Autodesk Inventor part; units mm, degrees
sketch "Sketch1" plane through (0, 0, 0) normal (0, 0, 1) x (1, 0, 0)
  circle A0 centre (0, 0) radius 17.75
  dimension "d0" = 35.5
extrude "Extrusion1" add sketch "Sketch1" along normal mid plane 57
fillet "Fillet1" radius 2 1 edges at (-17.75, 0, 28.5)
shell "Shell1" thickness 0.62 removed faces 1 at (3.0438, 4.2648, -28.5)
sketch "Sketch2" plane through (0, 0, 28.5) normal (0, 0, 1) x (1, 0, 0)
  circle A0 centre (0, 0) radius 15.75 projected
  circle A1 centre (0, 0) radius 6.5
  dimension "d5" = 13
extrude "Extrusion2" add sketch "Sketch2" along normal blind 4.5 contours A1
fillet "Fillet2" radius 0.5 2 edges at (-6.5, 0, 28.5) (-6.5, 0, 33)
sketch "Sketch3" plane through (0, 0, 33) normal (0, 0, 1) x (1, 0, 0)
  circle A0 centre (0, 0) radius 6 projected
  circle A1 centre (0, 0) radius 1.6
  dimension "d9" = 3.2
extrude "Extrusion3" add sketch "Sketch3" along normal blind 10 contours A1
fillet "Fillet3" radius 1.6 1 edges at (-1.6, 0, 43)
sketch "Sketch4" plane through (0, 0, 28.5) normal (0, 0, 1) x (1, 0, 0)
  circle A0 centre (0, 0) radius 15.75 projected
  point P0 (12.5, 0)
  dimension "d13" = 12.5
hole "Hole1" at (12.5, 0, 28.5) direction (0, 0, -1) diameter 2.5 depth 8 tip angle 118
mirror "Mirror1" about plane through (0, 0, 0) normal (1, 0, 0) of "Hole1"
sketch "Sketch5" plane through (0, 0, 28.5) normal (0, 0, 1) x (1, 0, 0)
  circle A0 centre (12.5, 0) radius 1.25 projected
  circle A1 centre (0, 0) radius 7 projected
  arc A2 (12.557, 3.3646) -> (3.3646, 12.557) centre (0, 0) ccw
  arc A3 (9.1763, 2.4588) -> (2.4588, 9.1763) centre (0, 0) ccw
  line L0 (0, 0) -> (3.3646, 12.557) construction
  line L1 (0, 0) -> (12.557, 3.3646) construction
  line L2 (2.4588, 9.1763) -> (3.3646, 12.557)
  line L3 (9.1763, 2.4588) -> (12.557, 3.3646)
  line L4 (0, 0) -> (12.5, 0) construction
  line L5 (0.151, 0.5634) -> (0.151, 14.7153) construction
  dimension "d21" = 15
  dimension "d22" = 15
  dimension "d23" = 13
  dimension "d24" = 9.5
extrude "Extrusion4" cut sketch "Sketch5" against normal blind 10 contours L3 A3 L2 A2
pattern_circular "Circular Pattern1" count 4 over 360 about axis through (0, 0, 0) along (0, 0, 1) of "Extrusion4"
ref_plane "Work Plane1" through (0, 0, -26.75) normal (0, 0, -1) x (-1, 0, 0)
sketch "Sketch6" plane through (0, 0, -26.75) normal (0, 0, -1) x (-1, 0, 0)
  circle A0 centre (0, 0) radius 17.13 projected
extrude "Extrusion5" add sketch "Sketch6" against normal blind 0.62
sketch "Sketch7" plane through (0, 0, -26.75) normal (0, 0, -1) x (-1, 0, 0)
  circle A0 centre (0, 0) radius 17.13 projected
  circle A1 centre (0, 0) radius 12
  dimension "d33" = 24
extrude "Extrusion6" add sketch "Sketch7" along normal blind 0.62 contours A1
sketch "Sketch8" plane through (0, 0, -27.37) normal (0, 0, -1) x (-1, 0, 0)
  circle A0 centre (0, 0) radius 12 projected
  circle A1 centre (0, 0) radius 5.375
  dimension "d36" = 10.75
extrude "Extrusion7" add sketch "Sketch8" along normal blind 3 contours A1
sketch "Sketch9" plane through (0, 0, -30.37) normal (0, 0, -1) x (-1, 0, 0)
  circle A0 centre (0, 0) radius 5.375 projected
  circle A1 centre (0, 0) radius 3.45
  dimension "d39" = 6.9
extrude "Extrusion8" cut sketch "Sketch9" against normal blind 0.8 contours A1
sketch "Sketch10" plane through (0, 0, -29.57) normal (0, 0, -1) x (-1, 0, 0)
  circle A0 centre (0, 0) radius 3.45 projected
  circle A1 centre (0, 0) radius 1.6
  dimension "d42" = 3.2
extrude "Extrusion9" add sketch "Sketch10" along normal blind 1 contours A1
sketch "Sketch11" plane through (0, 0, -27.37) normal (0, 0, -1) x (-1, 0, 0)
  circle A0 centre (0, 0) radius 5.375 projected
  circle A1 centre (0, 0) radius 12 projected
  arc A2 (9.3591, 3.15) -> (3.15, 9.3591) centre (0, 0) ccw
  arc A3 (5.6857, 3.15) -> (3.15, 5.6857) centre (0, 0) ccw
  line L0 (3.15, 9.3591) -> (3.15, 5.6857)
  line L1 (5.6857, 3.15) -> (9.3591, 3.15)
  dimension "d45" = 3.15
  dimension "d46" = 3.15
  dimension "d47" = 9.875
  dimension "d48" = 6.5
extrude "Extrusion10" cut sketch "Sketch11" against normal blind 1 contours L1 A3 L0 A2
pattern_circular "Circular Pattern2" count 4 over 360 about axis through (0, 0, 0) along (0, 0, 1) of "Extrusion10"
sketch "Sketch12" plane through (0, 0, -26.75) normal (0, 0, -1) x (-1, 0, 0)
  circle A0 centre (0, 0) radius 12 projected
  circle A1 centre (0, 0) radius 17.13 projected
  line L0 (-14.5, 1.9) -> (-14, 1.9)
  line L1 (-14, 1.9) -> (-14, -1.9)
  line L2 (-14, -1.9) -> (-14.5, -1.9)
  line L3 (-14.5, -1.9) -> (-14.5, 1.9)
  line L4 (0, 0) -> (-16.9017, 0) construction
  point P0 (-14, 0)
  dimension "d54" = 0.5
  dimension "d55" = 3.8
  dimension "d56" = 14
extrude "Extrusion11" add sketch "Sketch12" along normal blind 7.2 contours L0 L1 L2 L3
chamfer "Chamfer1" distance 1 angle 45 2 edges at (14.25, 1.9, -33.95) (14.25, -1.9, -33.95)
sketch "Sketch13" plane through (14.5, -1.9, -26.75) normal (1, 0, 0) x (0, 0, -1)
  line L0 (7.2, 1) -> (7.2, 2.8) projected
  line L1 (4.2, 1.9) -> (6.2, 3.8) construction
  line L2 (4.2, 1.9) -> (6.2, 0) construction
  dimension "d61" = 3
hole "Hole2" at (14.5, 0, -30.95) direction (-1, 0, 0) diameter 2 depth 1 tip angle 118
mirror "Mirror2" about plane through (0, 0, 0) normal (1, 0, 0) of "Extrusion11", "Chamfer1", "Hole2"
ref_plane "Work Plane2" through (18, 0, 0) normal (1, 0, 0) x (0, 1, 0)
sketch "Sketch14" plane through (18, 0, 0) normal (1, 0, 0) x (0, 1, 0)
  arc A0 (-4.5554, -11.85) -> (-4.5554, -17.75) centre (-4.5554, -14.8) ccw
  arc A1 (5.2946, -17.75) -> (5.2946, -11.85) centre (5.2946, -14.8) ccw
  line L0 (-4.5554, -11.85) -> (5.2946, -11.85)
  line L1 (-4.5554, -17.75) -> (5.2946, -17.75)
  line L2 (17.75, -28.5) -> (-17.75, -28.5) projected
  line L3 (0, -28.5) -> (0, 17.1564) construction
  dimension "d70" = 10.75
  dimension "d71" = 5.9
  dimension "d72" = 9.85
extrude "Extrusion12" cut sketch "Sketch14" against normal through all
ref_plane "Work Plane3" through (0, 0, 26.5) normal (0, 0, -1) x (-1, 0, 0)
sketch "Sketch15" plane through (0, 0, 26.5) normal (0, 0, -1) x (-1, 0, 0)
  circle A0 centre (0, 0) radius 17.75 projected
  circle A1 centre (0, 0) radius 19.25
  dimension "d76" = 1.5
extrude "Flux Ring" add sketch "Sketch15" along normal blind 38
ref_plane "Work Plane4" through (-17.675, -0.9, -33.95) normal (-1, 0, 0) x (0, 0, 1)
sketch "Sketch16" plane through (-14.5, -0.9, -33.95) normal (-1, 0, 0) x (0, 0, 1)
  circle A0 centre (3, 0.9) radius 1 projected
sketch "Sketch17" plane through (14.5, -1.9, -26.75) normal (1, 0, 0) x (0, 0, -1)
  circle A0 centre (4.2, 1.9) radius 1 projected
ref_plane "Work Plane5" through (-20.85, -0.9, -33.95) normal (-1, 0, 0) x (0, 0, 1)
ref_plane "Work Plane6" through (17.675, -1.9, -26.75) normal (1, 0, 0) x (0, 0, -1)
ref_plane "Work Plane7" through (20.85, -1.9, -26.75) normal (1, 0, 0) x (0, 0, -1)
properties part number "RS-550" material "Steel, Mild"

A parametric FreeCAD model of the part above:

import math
import FreeCAD as App
import Part
import Sketcher

V = App.Vector
Q = App.Units.Quantity


def edges_at(feature, points):
    """Names of the edges that pass closest to the given points."""
    edges = feature.Shape.Edges
    near = lambda p: min(range(len(edges)), key=lambda i: edges[i].distToShape(Part.Vertex(*p))[0])
    return sorted({f"Edge{near(p) + 1}" for p in points})


def faces_at(feature, points):
    """Names of the faces that lie closest to the given points."""
    faces = feature.Shape.Faces
    near = lambda p: min(range(len(faces)), key=lambda i: faces[i].distToShape(Part.Vertex(*p))[0])
    return sorted({f"Face{near(p) + 1}" for p in points})

doc = App.newDocument("Part")
params = doc.addObject("Spreadsheet::Sheet", "Params")
for row, (alias, value) in enumerate([
    ("sketch1_diameter", "35.5 mm"),
    ("pad1_length", "57 mm"),
    ("fillet_radius", "2 mm"),
    ("thickness_wall", "0.62 mm"),
    ("sketch2_diameter", "13 mm"),
    ("pad2_length", "4.5 mm"),
    ("fillet2_radius", "0.5 mm"),
    ("sketch3_diameter", "3.2 mm"),
    ("pad3_length", "10 mm"),
    ("fillet3_radius", "1.6 mm"),
    ("sketch4_diameter", "2.5 mm"),
    ("hole_diameter", "2.5 mm"),
    ("hole_depth", "8 mm"),
    ("sketch5_radius", "13 mm"),
    ("sketch5_radius2", "9.5 mm"),
    ("pocket1_length", "10 mm"),
    ("sketch6_diameter", "34.26 mm"),
    ("pad4_length", "0.62 mm"),
    ("sketch7_diameter", "24 mm"),
    ("pad5_length", "0.62 mm"),
    ("sketch8_diameter", "10.75 mm"),
    ("pad6_length", "3 mm"),
    ("sketch9_diameter", "6.9 mm"),
    ("pocket2_length", "0.8 mm"),
    ("sketch10_diameter", "3.2 mm"),
    ("pad7_length", "1 mm"),
    ("sketch11_radius", "6.5 mm"),
    ("pocket3_length", "1 mm"),
    ("sketch12_width", "0.5 mm"),
    ("sketch12_height", "3.8 mm"),
    ("pad8_length", "7.2 mm"),
    ("chamfer_size", "1 mm"),
    ("sketch13_diameter", "2 mm"),
    ("hole2_diameter", "2 mm"),
    ("hole2_depth", "1 mm"),
    ("sketch14_radius", "2.95 mm"),
    ("sketch14_width", "9.85 mm"),
    ("sketch15_diameter", "38.5 mm"),
    ("sketch15_diameter2", "35.5 mm"),
    ("pad9_length", "38 mm"),
], start=1):
    params.set(f"A{row}", alias)
    params.set(f"B{row}", "=" + value)
    params.setAlias(f"B{row}", alias)

body = doc.addObject("PartDesign::Body", "Body")

# Sketch on XY plane
sketch1 = body.newObject("Sketcher::SketchObject", "Sketch")
sketch1.AttachmentSupport = (doc.getObject("XY_Plane"), [""])
sketch1.MapMode = "FlatFace"
sketch1.addGeometry(Part.Circle(V(0, 0, 0), V(0, 0, 1), 18), False)
sketch1.addConstraint([
    Sketcher.Constraint("Coincident", 0, 3, -1, 1),
    Sketcher.Constraint("Diameter", 0, 35.5),
])
sketch1.setExpression("Constraints[1]", "Params.sketch1_diameter")
pad1 = body.newObject("PartDesign::Pad", "Pad")
pad1.Profile = sketch1
pad1.setExpression("Length", "Params.pad1_length")
pad1.Midplane = True
doc.recompute()

fillet = body.newObject("PartDesign::Fillet", "Fillet")
fillet.Base = (pad1, edges_at(pad1, [(-17.75, 0, 28.5)]))
fillet.setExpression("Radius", "Params.fillet_radius")
doc.recompute()

thickness = body.newObject("PartDesign::Thickness", "Thickness")
thickness.Base = (fillet, faces_at(fillet, [(3.044, 4.265, -28.5)]))
thickness.setExpression("Value", "Params.thickness_wall")
thickness.Reversed = True
thickness.Join = "Intersection"

# Sketch on XY plane
sketch2 = body.newObject("Sketcher::SketchObject", "Sketch001")
sketch2.AttachmentSupport = (doc.getObject("XY_Plane"), [""])
sketch2.MapMode = "FlatFace"
sketch2.AttachmentOffset = App.Placement(V(0, 0, 28.5), App.Rotation())
sketch2.addGeometry(Part.Circle(V(0, 0, 0), V(0, 0, 1), 6), False)
sketch2.addConstraint([
    Sketcher.Constraint("Coincident", 0, 3, -1, 1),
    Sketcher.Constraint("Diameter", 0, 13.0),
])
sketch2.setExpression("Constraints[1]", "Params.sketch2_diameter")
pad2 = body.newObject("PartDesign::Pad", "Pad001")
pad2.Profile = sketch2
pad2.setExpression("Length", "Params.pad2_length")
doc.recompute()

fillet2 = body.newObject("PartDesign::Fillet", "Fillet001")
fillet2.Base = (pad2, edges_at(pad2, [(-6.5, 0, 28.5), (-6.5, 0, 33)]))
fillet2.setExpression("Radius", "Params.fillet2_radius")

# Sketch on XY plane
sketch3 = body.newObject("Sketcher::SketchObject", "Sketch002")
sketch3.AttachmentSupport = (doc.getObject("XY_Plane"), [""])
sketch3.MapMode = "FlatFace"
sketch3.AttachmentOffset = App.Placement(V(0, 0, 33), App.Rotation())
sketch3.addGeometry(Part.Circle(V(0, 0, 0), V(0, 0, 1), 1.6), False)
sketch3.addConstraint([
    Sketcher.Constraint("Coincident", 0, 3, -1, 1),
    Sketcher.Constraint("Diameter", 0, 3.2),
])
sketch3.setExpression("Constraints[1]", "Params.sketch3_diameter")
pad3 = body.newObject("PartDesign::Pad", "Pad002")
pad3.Profile = sketch3
pad3.setExpression("Length", "Params.pad3_length")
doc.recompute()

fillet3 = body.newObject("PartDesign::Fillet", "Fillet002")
fillet3.Base = (pad3, edges_at(pad3, [(-1.6, 0, 43)]))
fillet3.setExpression("Radius", "Params.fillet3_radius")

# Sketch on XY plane
sketch4 = body.newObject("Sketcher::SketchObject", "Sketch003")
sketch4.AttachmentSupport = (doc.getObject("XY_Plane"), [""])
sketch4.MapMode = "FlatFace"
sketch4.AttachmentOffset = App.Placement(V(0, 0, 28.5), App.Rotation())
sketch4.addGeometry(Part.Circle(V(12.5, 0, 0), V(0, 0, 1), 1.2), False)
sketch4.addConstraint([
    Sketcher.Constraint("PointOnObject", 0, 3, -1),
    Sketcher.Constraint("Diameter", 0, 2.5),
    Sketcher.Constraint("DistanceX", -1, 1, 0, 3, 12.5),
])
sketch4.setExpression("Constraints[1]", "Params.sketch4_diameter")
doc.recompute()
hole = body.newObject("PartDesign::Hole", "Hole")
hole.Profile = sketch4
hole.ThreadType = "None"
hole.setExpression("Diameter", "Params.hole_diameter")
hole.DepthType = "Dimension"
hole.setExpression("Depth", "Params.hole_depth")
hole.DrillPoint = "Angled"
hole.DrillPointAngle = 118
doc.recompute()

mirrored = body.newObject("PartDesign::Mirrored", "Mirrored")
mirrored.Originals = [hole]
mirrored.MirrorPlane = (doc.getObject("YZ_Plane"), [""])
body.Tip = mirrored

# Sketch on XY plane
sketch5 = body.newObject("Sketcher::SketchObject", "Sketch004")
sketch5.AttachmentSupport = (doc.getObject("XY_Plane"), [""])
sketch5.MapMode = "FlatFace"
sketch5.AttachmentOffset = App.Placement(V(0, 0, 28.5), App.Rotation())
sketch5.addGeometry([
    Part.LineSegment(V(9.2, 2.5, 0), V(12.6, 3.4, 0)),
    Part.ArcOfCircle(Part.Circle(V(0, 0, 0), V(0, 0, 1), 13), math.radians(15), math.radians(75)),
    Part.LineSegment(V(3.4, 12.6, 0), V(2.5, 9.2, 0)),
    Part.ArcOfCircle(Part.Circle(V(0, 0, 0), V(0, 0, 1), 9.5), math.radians(15), math.radians(75)),
], False)
sketch5.addConstraint([
    Sketcher.Constraint("Coincident", 0, 2, 1, 1),
    Sketcher.Constraint("Coincident", 1, 2, 2, 1),
    Sketcher.Constraint("Coincident", 2, 2, 3, 2),
    Sketcher.Constraint("Coincident", 3, 1, 0, 1),
    Sketcher.Constraint("Coincident", 1, 3, -1, 1),
    Sketcher.Constraint("Coincident", 3, 3, -1, 1),
    Sketcher.Constraint("Radius", 1, 13.0),
    Sketcher.Constraint("Radius", 3, 9.5),
    Sketcher.Constraint("Angle", 0, Q("14.999 deg")),
    Sketcher.Constraint("Angle", 2, Q("-104.999 deg")),
    Sketcher.Constraint("DistanceX", -1, 1, 0, 2, 12.557),
    Sketcher.Constraint("DistanceY", -1, 1, 1, 2, 12.557),
])
sketch5.setExpression("Constraints[6]", "Params.sketch5_radius")
sketch5.setExpression("Constraints[7]", "Params.sketch5_radius2")
pocket1 = body.newObject("PartDesign::Pocket", "Pocket")
pocket1.Profile = sketch5
pocket1.setExpression("Length", "Params.pocket1_length")
doc.recompute()

polarpattern = body.newObject("PartDesign::PolarPattern", "PolarPattern")
polarpattern.Originals = [pocket1]
polarpattern.Axis = (doc.getObject("Z_Axis"), [""])
polarpattern.Angle = 360
polarpattern.Occurrences = 4
body.Tip = polarpattern

# Sketch on XY plane
sketch6 = body.newObject("Sketcher::SketchObject", "Sketch005")
sketch6.AttachmentSupport = (doc.getObject("XY_Plane"), [""])
sketch6.MapMode = "FlatFace"
sketch6.AttachmentOffset = App.Placement(V(0, 0, -26.75), App.Rotation())
sketch6.addGeometry(Part.Circle(V(0, 0, 0), V(0, 0, 1), 17), False)
sketch6.addConstraint([
    Sketcher.Constraint("Coincident", 0, 3, -1, 1),
    Sketcher.Constraint("Diameter", 0, 34.26),
])
sketch6.setExpression("Constraints[1]", "Params.sketch6_diameter")
pad4 = body.newObject("PartDesign::Pad", "Pad003")
pad4.Profile = sketch6
pad4.setExpression("Length", "Params.pad4_length")

# Sketch on XY plane
sketch7 = body.newObject("Sketcher::SketchObject", "Sketch006")
sketch7.AttachmentSupport = (doc.getObject("XY_Plane"), [""])
sketch7.MapMode = "FlatFace"
sketch7.AttachmentOffset = App.Placement(V(0, 0, -26.75), App.Rotation())
sketch7.addGeometry(Part.Circle(V(0, 0, 0), V(0, 0, 1), 12), False)
sketch7.addConstraint([
    Sketcher.Constraint("Coincident", 0, 3, -1, 1),
    Sketcher.Constraint("Diameter", 0, 24.0),
])
sketch7.setExpression("Constraints[1]", "Params.sketch7_diameter")
pad5 = body.newObject("PartDesign::Pad", "Pad004")
pad5.Profile = sketch7
pad5.setExpression("Length", "Params.pad5_length")
pad5.Reversed = True

# Sketch on XY plane
sketch8 = body.newObject("Sketcher::SketchObject", "Sketch007")
sketch8.AttachmentSupport = (doc.getObject("XY_Plane"), [""])
sketch8.MapMode = "FlatFace"
sketch8.AttachmentOffset = App.Placement(V(0, 0, -27.37), App.Rotation())
sketch8.addGeometry(Part.Circle(V(0, 0, 0), V(0, 0, 1), 5), False)
sketch8.addConstraint([
    Sketcher.Constraint("Coincident", 0, 3, -1, 1),
    Sketcher.Constraint("Diameter", 0, 10.75),
])
sketch8.setExpression("Constraints[1]", "Params.sketch8_diameter")
pad6 = body.newObject("PartDesign::Pad", "Pad005")
pad6.Profile = sketch8
pad6.setExpression("Length", "Params.pad6_length")
pad6.Reversed = True

# Sketch on XY plane
sketch9 = body.newObject("Sketcher::SketchObject", "Sketch008")
sketch9.AttachmentSupport = (doc.getObject("XY_Plane"), [""])
sketch9.MapMode = "FlatFace"
sketch9.AttachmentOffset = App.Placement(V(0, 0, -30.37), App.Rotation())
sketch9.addGeometry(Part.Circle(V(0, 0, 0), V(0, 0, 1), 3.5), False)
sketch9.addConstraint([
    Sketcher.Constraint("Coincident", 0, 3, -1, 1),
    Sketcher.Constraint("Diameter", 0, 6.9),
])
sketch9.setExpression("Constraints[1]", "Params.sketch9_diameter")
pocket2 = body.newObject("PartDesign::Pocket", "Pocket001")
pocket2.Profile = sketch9
pocket2.setExpression("Length", "Params.pocket2_length")
pocket2.Reversed = True

# Sketch on XY plane
sketch10 = body.newObject("Sketcher::SketchObject", "Sketch009")
sketch10.AttachmentSupport = (doc.getObject("XY_Plane"), [""])
sketch10.MapMode = "FlatFace"
sketch10.AttachmentOffset = App.Placement(V(0, 0, -29.57), App.Rotation())
sketch10.addGeometry(Part.Circle(V(0, 0, 0), V(0, 0, 1), 1.6), False)
sketch10.addConstraint([
    Sketcher.Constraint("Coincident", 0, 3, -1, 1),
    Sketcher.Constraint("Diameter", 0, 3.2),
])
sketch10.setExpression("Constraints[1]", "Params.sketch10_diameter")
pad7 = body.newObject("PartDesign::Pad", "Pad006")
pad7.Profile = sketch10
pad7.setExpression("Length", "Params.pad7_length")
pad7.Reversed = True

# Sketch on XY plane
sketch11 = body.newObject("Sketcher::SketchObject", "Sketch010")
sketch11.AttachmentSupport = (doc.getObject("XY_Plane"), [""])
sketch11.MapMode = "FlatFace"
sketch11.AttachmentOffset = App.Placement(V(0, 0, -27.37), App.Rotation())
sketch11.addGeometry([
    Part.LineSegment(V(-5.7, 3.1, 0), V(-9.4, 3.1, 0)),
    Part.ArcOfCircle(Part.Circle(V(0, 0, 0), V(0, 0, 1), 9.9), math.radians(109), math.radians(161)),
    Part.LineSegment(V(-3.1, 9.4, 0), V(-3.1, 5.7, 0)),
    Part.ArcOfCircle(Part.Circle(V(0, 0, 0), V(0, 0, 1), 6.5), math.radians(119), math.radians(151)),
], False)
sketch11.addConstraint([
    Sketcher.Constraint("Coincident", 0, 2, 1, 2),
    Sketcher.Constraint("Coincident", 1, 1, 2, 1),
    Sketcher.Constraint("Coincident", 2, 2, 3, 1),
    Sketcher.Constraint("Coincident", 3, 2, 0, 1),
    Sketcher.Constraint("Horizontal", 0),
    Sketcher.Constraint("Vertical", 2),
    Sketcher.Constraint("Coincident", 1, 3, -1, 1),
    Sketcher.Constraint("Coincident", 3, 3, -1, 1),
    Sketcher.Constraint("Equal", 0, 2),
    Sketcher.Constraint("Radius", 3, 6.5),
    Sketcher.Constraint("Radius", 1, 9.875),
    Sketcher.Constraint("DistanceY", -1, 1, 0, 2, 3.15),
])
sketch11.setExpression("Constraints[9]", "Params.sketch11_radius")
pocket3 = body.newObject("PartDesign::Pocket", "Pocket002")
pocket3.Profile = sketch11
pocket3.setExpression("Length", "Params.pocket3_length")
pocket3.Reversed = True
doc.recompute()

polarpattern2 = body.newObject("PartDesign::PolarPattern", "PolarPattern001")
polarpattern2.Originals = [pocket3]
polarpattern2.Axis = (doc.getObject("Z_Axis"), [""])
polarpattern2.Angle = 360
polarpattern2.Occurrences = 4
body.Tip = polarpattern2

# Sketch on XY plane
sketch12 = body.newObject("Sketcher::SketchObject", "Sketch011")
sketch12.AttachmentSupport = (doc.getObject("XY_Plane"), [""])
sketch12.MapMode = "FlatFace"
sketch12.AttachmentOffset = App.Placement(V(0, 0, -26.75), App.Rotation())
sketch12.addGeometry([
    Part.LineSegment(V(14, 1.9, 0), V(14.5, 1.9, 0)),
    Part.LineSegment(V(14.5, 1.9, 0), V(14.5, -1.9, 0)),
    Part.LineSegment(V(14.5, -1.9, 0), V(14, -1.9, 0)),
    Part.LineSegment(V(14, -1.9, 0), V(14, 1.9, 0)),
], False)
sketch12.addConstraint([
    Sketcher.Constraint("Coincident", 0, 2, 1, 1),
    Sketcher.Constraint("Coincident", 1, 2, 2, 1),
    Sketcher.Constraint("Coincident", 2, 2, 3, 1),
    Sketcher.Constraint("Coincident", 3, 2, 0, 1),
    Sketcher.Constraint("Horizontal", 0),
    Sketcher.Constraint("Vertical", 1),
    Sketcher.Constraint("Horizontal", 2),
    Sketcher.Constraint("Vertical", 3),
    Sketcher.Constraint("DistanceX", 0, 1, 0, 2, 0.5),
    Sketcher.Constraint("DistanceY", 1, 2, 1, 1, 3.8),
    Sketcher.Constraint("DistanceX", -1, 1, 2, 2, 14.0),
    Sketcher.Constraint("DistanceY", -1, 1, 0, 2, 1.9),
])
sketch12.setExpression("Constraints[8]", "Params.sketch12_width")
sketch12.setExpression("Constraints[9]", "Params.sketch12_height")
pad8 = body.newObject("PartDesign::Pad", "Pad007")
pad8.Profile = sketch12
pad8.setExpression("Length", "Params.pad8_length")
pad8.Reversed = True
doc.recompute()

chamfer = body.newObject("PartDesign::Chamfer", "Chamfer")
chamfer.Base = (pad8, edges_at(pad8, [(14.25, 1.9, -33.95), (14.25, -1.9, -33.95)]))
chamfer.setExpression("Size", "Params.chamfer_size")

# Sketch on YZ plane
sketch13 = body.newObject("Sketcher::SketchObject", "Sketch012")
sketch13.AttachmentSupport = (doc.getObject("YZ_Plane"), [""])
sketch13.MapMode = "FlatFace"
sketch13.AttachmentOffset = App.Placement(V(0, 0, 14.5), App.Rotation())
sketch13.addGeometry(Part.Circle(V(0, -30.9, 0), V(0, 0, 1), 1), False)
sketch13.addConstraint([
    Sketcher.Constraint("PointOnObject", 0, 3, -2),
    Sketcher.Constraint("Diameter", 0, 2.0),
    Sketcher.Constraint("DistanceY", 0, 3, -1, 1, 30.95),
])
sketch13.setExpression("Constraints[1]", "Params.sketch13_diameter")
doc.recompute()
hole2 = body.newObject("PartDesign::Hole", "Hole001")
hole2.Profile = sketch13
hole2.ThreadType = "None"
hole2.setExpression("Diameter", "Params.hole2_diameter")
hole2.DepthType = "Dimension"
hole2.setExpression("Depth", "Params.hole2_depth")
hole2.DrillPoint = "Angled"
hole2.DrillPointAngle = 118
doc.recompute()

mirrored2 = body.newObject("PartDesign::Mirrored", "Mirrored001")
mirrored2.Originals = [pad8, chamfer, hole2]
mirrored2.MirrorPlane = (doc.getObject("YZ_Plane"), [""])
body.Tip = mirrored2

# Sketch on YZ plane
sketch14 = body.newObject("Sketcher::SketchObject", "Sketch013")
sketch14.AttachmentSupport = (doc.getObject("YZ_Plane"), [""])
sketch14.MapMode = "FlatFace"
sketch14.AttachmentOffset = App.Placement(V(0, 0, 18), App.Rotation())
sketch14.addGeometry([
    Part.LineSegment(V(5.3, -11.8, 0), V(-4.6, -11.8, 0)),
    Part.ArcOfCircle(Part.Circle(V(-4.6, -14.8, 0), V(0, 0, 1), 3), math.radians(90), math.radians(270)),
    Part.LineSegment(V(-4.6, -17.8, 0), V(5.3, -17.8, 0)),
    Part.ArcOfCircle(Part.Circle(V(5.3, -14.8, 0), V(0, 0, 1), 2.9), math.radians(-90), math.radians(90)),
], False)
sketch14.addConstraint([
    Sketcher.Constraint("Tangent", 0, 2, 1, 1),
    Sketcher.Constraint("Tangent", 1, 2, 2, 1),
    Sketcher.Constraint("Tangent", 2, 2, 3, 1),
    Sketcher.Constraint("Tangent", 3, 2, 0, 1),
    Sketcher.Constraint("Horizontal", 0),
    Sketcher.Constraint("Horizontal", 2),
    Sketcher.Constraint("Radius", 1, 2.95),
    Sketcher.Constraint("DistanceX", 0, 2, 0, 1, 9.85),
    Sketcher.Constraint("DistanceY", 1, 3, -1, 1, 14.8),
    Sketcher.Constraint("DistanceX", 1, 3, -1, 1, 4.5554),
])
sketch14.setExpression("Constraints[6]", "Params.sketch14_radius")
sketch14.setExpression("Constraints[7]", "Params.sketch14_width")
pocket4 = body.newObject("PartDesign::Pocket", "Pocket003")
pocket4.Profile = sketch14
pocket4.Type = "ThroughAll"

# Sketch on XY plane
sketch15 = body.newObject("Sketcher::SketchObject", "Sketch014")
sketch15.AttachmentSupport = (doc.getObject("XY_Plane"), [""])
sketch15.MapMode = "FlatFace"
sketch15.AttachmentOffset = App.Placement(V(0, 0, 26.5), App.Rotation())
sketch15.addGeometry([
    Part.Circle(V(0, 0, 0), V(0, 0, 1), 19),
    Part.Circle(V(0, 0, 0), V(0, 0, 1), 18),
], False)
sketch15.addConstraint([
    Sketcher.Constraint("Coincident", 0, 3, -1, 1),
    Sketcher.Constraint("Coincident", 1, 3, -1, 1),
    Sketcher.Constraint("Diameter", 0, 38.5),
    Sketcher.Constraint("Diameter", 1, 35.5),
])
sketch15.setExpression("Constraints[2]", "Params.sketch15_diameter")
sketch15.setExpression("Constraints[3]", "Params.sketch15_diameter2")
pad9 = body.newObject("PartDesign::Pad", "Pad008")
pad9.Profile = sketch15
pad9.setExpression("Length", "Params.pad9_length")
pad9.Reversed = True

doc.recompute()
